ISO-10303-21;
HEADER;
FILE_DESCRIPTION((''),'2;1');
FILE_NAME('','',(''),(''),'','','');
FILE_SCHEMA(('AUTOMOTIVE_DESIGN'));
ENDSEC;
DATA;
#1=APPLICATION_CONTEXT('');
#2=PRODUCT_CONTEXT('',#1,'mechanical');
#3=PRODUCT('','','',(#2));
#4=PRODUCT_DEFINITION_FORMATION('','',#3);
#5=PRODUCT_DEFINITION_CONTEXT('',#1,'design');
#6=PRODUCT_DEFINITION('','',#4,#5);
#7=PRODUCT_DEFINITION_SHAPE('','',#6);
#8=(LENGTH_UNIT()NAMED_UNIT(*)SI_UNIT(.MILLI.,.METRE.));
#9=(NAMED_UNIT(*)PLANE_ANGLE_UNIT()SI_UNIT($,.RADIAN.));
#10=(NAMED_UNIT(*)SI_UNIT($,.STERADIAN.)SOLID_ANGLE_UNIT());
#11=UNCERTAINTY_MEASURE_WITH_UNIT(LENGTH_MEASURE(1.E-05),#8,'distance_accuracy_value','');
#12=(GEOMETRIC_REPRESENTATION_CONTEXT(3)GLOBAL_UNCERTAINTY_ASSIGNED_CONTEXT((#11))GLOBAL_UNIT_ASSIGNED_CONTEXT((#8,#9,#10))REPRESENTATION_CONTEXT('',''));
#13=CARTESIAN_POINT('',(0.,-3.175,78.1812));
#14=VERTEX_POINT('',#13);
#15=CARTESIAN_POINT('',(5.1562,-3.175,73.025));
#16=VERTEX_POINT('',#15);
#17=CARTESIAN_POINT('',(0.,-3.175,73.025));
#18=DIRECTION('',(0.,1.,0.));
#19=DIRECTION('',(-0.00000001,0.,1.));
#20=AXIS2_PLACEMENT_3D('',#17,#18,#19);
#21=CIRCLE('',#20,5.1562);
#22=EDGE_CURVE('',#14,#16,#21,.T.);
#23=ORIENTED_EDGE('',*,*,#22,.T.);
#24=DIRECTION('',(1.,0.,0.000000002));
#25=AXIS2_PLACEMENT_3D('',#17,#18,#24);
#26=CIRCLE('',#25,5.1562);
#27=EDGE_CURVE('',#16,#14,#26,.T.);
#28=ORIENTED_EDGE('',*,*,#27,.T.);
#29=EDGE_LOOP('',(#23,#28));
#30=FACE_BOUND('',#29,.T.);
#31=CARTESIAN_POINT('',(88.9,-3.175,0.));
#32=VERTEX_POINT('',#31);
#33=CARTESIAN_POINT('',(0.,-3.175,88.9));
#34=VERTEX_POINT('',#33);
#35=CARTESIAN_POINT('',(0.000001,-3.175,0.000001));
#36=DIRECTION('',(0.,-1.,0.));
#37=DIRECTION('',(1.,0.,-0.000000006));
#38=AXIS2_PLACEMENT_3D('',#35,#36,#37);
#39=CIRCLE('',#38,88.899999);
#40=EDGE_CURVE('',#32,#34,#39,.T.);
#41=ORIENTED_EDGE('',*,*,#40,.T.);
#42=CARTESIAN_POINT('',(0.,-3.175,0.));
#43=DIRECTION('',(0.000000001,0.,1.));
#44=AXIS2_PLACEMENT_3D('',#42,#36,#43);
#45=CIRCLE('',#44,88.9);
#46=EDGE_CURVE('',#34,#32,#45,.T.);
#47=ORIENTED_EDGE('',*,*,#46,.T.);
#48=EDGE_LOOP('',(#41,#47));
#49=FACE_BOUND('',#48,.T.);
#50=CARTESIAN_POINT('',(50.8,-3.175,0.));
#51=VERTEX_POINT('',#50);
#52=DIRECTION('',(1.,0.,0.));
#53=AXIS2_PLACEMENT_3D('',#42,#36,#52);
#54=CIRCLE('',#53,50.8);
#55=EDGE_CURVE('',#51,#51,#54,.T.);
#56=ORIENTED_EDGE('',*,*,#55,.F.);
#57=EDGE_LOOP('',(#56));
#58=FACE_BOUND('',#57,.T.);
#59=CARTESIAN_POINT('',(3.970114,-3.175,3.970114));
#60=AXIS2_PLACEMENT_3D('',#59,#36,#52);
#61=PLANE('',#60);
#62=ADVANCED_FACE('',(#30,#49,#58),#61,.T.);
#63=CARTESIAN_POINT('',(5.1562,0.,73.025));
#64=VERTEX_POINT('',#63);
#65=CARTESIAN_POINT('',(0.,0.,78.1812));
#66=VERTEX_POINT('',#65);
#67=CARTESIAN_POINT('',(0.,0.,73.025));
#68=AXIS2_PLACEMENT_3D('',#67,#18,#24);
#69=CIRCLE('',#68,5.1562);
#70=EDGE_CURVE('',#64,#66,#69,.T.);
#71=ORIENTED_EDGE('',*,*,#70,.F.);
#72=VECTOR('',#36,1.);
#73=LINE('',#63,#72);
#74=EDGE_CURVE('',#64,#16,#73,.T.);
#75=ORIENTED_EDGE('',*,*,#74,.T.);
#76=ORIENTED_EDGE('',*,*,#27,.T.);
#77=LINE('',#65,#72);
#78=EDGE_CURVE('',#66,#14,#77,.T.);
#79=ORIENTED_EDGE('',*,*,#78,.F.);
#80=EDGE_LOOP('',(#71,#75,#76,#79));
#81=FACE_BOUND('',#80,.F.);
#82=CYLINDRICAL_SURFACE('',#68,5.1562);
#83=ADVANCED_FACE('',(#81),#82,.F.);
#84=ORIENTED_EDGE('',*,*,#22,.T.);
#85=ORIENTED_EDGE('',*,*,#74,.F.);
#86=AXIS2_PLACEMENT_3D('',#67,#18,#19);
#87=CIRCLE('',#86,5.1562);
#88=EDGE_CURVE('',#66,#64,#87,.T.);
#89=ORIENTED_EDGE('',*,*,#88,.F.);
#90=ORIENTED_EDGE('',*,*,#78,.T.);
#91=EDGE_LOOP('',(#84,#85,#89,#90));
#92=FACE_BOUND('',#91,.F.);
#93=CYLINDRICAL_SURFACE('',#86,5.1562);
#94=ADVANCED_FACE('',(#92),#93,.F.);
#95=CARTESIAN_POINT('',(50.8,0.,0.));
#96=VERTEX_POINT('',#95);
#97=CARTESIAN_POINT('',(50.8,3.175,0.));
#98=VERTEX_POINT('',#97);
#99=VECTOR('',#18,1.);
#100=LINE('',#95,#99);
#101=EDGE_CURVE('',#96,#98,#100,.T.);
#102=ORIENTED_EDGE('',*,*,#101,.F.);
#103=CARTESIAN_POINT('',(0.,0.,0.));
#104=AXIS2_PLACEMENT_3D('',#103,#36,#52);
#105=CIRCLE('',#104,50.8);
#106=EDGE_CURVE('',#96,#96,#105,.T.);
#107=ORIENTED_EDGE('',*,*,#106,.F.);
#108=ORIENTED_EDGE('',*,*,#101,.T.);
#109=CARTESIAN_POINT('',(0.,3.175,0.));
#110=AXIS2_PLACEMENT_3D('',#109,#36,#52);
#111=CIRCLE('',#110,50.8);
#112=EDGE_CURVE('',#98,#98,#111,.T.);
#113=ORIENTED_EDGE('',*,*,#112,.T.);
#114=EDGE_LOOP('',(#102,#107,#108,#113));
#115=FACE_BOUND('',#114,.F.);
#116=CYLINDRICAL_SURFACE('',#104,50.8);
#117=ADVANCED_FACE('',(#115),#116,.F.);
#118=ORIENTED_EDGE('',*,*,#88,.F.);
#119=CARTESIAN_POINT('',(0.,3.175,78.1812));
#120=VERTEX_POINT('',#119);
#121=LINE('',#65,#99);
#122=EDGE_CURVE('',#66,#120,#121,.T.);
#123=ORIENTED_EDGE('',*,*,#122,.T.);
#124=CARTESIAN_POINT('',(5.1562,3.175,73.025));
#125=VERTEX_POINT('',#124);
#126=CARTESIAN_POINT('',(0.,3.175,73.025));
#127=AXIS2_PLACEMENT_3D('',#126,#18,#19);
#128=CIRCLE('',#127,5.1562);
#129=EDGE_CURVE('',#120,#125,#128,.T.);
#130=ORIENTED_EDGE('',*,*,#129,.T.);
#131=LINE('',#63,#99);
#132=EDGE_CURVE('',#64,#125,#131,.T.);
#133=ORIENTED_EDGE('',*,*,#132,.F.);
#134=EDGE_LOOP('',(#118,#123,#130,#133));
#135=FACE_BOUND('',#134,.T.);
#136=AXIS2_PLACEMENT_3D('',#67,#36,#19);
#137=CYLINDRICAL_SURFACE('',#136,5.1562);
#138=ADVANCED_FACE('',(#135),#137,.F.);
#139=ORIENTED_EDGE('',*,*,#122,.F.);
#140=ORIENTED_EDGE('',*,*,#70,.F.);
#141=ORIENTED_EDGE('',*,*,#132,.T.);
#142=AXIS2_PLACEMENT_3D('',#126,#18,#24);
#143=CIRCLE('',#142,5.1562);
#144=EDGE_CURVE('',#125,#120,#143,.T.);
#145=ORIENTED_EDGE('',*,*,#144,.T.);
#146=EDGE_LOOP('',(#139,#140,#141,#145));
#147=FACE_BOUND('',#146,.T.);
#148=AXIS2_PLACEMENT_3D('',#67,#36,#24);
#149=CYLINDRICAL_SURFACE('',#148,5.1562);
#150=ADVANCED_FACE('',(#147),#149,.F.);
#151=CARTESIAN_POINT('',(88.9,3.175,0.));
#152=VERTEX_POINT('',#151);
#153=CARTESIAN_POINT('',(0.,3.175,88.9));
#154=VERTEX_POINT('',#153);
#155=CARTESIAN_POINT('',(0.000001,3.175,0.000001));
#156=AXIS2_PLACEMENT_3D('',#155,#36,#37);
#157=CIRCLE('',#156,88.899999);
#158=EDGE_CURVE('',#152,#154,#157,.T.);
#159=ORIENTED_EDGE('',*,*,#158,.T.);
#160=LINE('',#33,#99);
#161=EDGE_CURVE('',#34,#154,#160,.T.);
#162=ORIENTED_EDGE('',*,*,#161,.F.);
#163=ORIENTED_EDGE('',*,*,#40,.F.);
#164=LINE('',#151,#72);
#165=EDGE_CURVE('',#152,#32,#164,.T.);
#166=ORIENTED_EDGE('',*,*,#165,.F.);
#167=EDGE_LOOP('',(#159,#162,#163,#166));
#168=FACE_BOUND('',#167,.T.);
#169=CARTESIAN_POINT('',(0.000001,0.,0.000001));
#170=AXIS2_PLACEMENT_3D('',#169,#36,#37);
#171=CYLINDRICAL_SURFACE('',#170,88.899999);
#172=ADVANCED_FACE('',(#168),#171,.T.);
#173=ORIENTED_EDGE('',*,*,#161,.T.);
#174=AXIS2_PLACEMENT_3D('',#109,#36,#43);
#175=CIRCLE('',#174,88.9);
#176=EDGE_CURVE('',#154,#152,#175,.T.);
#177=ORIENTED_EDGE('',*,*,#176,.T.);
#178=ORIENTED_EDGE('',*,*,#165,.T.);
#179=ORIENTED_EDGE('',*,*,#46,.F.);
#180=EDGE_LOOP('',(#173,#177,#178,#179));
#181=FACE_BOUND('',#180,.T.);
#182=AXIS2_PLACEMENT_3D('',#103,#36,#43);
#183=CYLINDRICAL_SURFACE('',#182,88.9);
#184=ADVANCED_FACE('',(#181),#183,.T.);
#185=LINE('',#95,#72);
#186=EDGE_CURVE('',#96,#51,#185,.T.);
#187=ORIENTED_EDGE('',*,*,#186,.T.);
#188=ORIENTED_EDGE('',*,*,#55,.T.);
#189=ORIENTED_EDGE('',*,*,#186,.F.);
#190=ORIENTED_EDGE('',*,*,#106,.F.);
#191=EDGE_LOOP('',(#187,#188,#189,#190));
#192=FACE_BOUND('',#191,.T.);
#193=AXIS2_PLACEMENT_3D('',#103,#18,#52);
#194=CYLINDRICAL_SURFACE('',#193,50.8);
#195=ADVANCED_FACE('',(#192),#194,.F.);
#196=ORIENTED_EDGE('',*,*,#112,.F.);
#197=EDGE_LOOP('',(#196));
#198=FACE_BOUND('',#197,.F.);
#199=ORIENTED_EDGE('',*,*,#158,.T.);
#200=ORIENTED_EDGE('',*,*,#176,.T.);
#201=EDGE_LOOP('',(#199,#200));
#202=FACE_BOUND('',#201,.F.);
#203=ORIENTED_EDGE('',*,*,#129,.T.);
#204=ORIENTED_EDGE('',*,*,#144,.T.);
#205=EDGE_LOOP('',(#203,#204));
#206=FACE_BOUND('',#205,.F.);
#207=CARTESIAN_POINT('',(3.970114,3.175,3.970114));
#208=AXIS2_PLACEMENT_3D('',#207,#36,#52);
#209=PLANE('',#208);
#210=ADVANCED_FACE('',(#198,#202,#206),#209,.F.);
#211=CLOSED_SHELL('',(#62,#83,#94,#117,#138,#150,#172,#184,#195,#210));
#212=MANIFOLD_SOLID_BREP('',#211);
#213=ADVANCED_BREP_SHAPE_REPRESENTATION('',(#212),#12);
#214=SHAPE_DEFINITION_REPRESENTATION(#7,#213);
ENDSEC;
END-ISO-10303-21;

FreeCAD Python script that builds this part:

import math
import FreeCAD as App
import Part
import Sketcher
Q = App.Units.Quantity

doc = App.newDocument("Part")
body = doc.addObject("PartDesign::Body", "Body")

# Sketch on XZ plane
sketch1 = body.newObject("Sketcher::SketchObject", "Sketch")
sketch1.AttachmentSupport = (doc.getObject("XZ_Plane"), [""])
sketch1.MapMode = "FlatFace"
sketch1.addGeometry([
    Part.ArcOfCircle(Part.Circle(App.Vector(0, 0, 0), App.Vector(0, 0, 1), 89), math.radians(90), math.radians(360)),  # 0
    Part.ArcOfCircle(Part.Circle(App.Vector(0, 0, 0), App.Vector(0, 0, 1), 89), math.radians(0), math.radians(90)),  # 1
    Part.Circle(App.Vector(0, 0, 0), App.Vector(0, 0, 1), 51),  # 2
    Part.ArcOfCircle(Part.Circle(App.Vector(0, 73, 0), App.Vector(0, 0, 1), 5), math.radians(0), math.radians(90)),  # 3
    Part.ArcOfCircle(Part.Circle(App.Vector(0, 73, 0), App.Vector(0, 0, 1), 5), math.radians(90), math.radians(360)),  # 4
], False)
sketch1.addConstraint([
    Sketcher.Constraint("Tangent", 0, 1, 1, 2),
    Sketcher.Constraint("Coincident", 1, 1, 0, 2),
    Sketcher.Constraint("Tangent", 3, 1, 4, 2),
    Sketcher.Constraint("Coincident", 4, 1, 3, 2),
    Sketcher.Constraint("Coincident", 0, 3, -1, 1),
    Sketcher.Constraint("Coincident", 2, 3, -1, 1),
    Sketcher.Constraint("PointOnObject", 3, 3, -2),
    Sketcher.Constraint("PointOnObject", 0, 1, -2),
    Sketcher.Constraint("PointOnObject", 1, 1, -1),
    Sketcher.Constraint("PointOnObject", 4, 1, -2),
    Sketcher.Constraint("Horizontal", 4, 3, 3, 1),
    Sketcher.Constraint("Diameter", 2, Q("4 in")),
    Sketcher.Constraint("Radius", 0, Q("3.5 in")),
    Sketcher.Constraint("Radius", 3, Q("0.203 in")),
    Sketcher.Constraint("DistanceY", -1, 1, 3, 3, Q("2.875 in")),
])
pad1 = body.newObject("PartDesign::Pad", "Pad")
pad1.Profile = sketch1
pad1.Length = Q("0.25 in")
pad1.Midplane = True

doc.recompute()
